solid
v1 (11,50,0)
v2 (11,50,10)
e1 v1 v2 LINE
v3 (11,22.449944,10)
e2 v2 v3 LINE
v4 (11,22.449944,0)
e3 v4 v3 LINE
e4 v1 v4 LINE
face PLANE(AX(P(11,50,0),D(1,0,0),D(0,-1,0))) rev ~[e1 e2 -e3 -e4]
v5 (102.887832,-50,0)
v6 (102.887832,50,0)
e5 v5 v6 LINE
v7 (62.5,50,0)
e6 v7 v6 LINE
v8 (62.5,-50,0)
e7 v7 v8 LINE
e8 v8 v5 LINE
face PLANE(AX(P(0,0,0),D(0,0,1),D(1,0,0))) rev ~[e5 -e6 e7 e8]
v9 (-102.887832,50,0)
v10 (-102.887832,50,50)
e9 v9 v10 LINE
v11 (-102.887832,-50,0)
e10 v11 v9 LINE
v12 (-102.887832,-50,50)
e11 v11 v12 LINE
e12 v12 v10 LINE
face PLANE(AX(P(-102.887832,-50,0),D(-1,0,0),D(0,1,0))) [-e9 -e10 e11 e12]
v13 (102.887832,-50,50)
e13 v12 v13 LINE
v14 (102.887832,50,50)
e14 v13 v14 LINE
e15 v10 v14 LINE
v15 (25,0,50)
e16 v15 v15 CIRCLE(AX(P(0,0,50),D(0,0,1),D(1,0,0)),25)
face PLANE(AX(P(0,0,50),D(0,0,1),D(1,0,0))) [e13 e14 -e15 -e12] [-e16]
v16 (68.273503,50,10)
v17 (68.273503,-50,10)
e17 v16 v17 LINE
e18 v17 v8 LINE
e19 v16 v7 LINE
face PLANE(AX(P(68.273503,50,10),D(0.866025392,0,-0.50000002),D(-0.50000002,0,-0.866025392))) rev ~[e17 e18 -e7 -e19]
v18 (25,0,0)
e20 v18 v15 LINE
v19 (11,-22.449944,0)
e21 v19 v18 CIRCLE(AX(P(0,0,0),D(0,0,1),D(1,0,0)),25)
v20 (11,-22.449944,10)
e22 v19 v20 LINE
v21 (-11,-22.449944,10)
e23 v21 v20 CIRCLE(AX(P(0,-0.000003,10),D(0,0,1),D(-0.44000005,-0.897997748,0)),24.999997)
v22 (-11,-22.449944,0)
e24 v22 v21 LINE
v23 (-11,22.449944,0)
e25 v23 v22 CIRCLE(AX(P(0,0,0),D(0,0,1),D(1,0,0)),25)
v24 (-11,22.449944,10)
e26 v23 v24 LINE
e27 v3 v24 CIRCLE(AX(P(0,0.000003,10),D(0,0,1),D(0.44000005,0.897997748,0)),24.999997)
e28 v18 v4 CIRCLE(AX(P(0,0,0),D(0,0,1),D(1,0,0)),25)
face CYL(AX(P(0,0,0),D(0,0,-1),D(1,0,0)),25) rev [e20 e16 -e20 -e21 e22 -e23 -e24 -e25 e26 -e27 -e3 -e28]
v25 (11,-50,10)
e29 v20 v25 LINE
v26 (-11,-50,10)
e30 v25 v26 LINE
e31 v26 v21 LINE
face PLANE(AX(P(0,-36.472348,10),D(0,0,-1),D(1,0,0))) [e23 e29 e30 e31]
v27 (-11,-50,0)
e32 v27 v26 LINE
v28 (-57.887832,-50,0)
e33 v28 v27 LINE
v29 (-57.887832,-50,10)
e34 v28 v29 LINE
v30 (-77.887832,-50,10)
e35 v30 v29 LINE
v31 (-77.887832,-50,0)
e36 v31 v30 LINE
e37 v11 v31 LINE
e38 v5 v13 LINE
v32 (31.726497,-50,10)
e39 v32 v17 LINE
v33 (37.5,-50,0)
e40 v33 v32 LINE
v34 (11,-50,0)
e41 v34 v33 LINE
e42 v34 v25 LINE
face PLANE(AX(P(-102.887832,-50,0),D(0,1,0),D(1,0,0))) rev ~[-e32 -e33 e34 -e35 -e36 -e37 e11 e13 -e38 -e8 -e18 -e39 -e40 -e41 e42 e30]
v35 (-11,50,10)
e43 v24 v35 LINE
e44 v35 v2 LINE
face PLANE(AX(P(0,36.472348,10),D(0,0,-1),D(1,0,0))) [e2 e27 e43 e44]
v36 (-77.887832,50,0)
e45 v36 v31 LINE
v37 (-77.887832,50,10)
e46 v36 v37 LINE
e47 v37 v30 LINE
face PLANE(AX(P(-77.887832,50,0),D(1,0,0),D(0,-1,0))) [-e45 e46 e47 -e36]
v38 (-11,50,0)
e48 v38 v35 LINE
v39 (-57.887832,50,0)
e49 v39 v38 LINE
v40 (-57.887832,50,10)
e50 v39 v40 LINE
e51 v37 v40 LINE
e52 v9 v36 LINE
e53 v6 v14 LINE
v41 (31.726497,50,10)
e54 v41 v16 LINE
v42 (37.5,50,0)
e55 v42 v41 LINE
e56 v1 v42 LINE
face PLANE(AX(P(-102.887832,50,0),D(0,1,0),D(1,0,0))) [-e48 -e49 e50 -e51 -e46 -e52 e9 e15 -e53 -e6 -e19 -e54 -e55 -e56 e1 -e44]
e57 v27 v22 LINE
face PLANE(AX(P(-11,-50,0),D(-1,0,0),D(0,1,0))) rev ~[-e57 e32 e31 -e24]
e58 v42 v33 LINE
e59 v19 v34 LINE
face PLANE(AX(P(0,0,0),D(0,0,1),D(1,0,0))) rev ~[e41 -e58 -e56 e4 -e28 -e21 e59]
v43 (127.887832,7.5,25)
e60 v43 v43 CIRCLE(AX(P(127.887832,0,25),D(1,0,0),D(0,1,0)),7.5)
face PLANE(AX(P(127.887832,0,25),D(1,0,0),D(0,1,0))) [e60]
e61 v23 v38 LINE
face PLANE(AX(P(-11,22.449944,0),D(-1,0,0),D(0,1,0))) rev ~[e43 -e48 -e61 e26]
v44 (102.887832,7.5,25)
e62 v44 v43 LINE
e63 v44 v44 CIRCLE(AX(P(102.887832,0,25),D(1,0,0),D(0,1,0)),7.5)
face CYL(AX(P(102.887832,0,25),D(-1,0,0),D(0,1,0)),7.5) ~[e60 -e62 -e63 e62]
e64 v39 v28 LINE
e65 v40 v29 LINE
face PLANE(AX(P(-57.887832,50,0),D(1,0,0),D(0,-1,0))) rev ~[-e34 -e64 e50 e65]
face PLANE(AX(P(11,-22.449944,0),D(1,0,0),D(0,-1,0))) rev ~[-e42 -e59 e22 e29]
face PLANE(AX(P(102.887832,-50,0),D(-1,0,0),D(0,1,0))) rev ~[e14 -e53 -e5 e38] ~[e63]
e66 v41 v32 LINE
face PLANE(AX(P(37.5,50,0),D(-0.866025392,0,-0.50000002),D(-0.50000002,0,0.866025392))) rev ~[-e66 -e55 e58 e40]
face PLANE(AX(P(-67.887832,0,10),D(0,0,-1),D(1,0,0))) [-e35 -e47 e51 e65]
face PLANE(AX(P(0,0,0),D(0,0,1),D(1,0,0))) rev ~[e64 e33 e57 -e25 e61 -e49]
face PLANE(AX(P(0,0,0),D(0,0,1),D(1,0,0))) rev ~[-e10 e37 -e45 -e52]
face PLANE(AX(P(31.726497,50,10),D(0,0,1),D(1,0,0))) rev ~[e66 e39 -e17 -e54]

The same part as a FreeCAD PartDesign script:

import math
import FreeCAD as App
import Part
import Sketcher
Q = App.Units.Quantity

doc = App.newDocument("Part")
body = doc.addObject("PartDesign::Body", "Body")

# Sketch on XY plane
sketch1 = body.newObject("Sketcher::SketchObject", "Sketch")
sketch1.AttachmentSupport = (doc.getObject("XY_Plane"), [""])
sketch1.MapMode = "FlatFace"
sketch1.addGeometry([
    Part.LineSegment(App.Vector(-103, 50, 0), App.Vector(-103, -50, 0)),  # 0
    Part.LineSegment(App.Vector(-103, -50, 0), App.Vector(103, -50, 0)),  # 1
    Part.LineSegment(App.Vector(103, -50, 0), App.Vector(103, 50, 0)),  # 2
    Part.LineSegment(App.Vector(103, 50, 0), App.Vector(-103, 50, 0)),  # 3
    Part.Circle(App.Vector(0, 0, 0), App.Vector(0, 0, 1), 25),  # 4
], False)
sketch1.addConstraint([
    Sketcher.Constraint("Coincident", 0, 2, 1, 1),
    Sketcher.Constraint("Coincident", 1, 2, 2, 1),
    Sketcher.Constraint("Coincident", 2, 2, 3, 1),
    Sketcher.Constraint("Coincident", 3, 2, 0, 1),
    Sketcher.Constraint("Vertical", 0),
    Sketcher.Constraint("Horizontal", 1),
    Sketcher.Constraint("Vertical", 2),
    Sketcher.Constraint("Horizontal", 3),
    Sketcher.Constraint("Coincident", 4, 3, -1, 1),
    Sketcher.Constraint("Symmetric", 0, 2, 2, 2, -1, 1),
    Sketcher.Constraint("Diameter", 4, 50.0),
    Sketcher.Constraint("DistanceY", 0, 2, 0, 1, 100.0),
    Sketcher.Constraint("DistanceX", 1, 1, 1, 2, 205.775664),
])
pad1 = body.newObject("PartDesign::Pad", "Pad")
pad1.Profile = sketch1
pad1.Length = 50

# Sketch on XY plane
sketch2 = body.newObject("Sketcher::SketchObject", "Sketch001")
sketch2.AttachmentSupport = (doc.getObject("XY_Plane"), [""])
sketch2.MapMode = "FlatFace"
sketch2.addGeometry([
    Part.LineSegment(App.Vector(-78, -50, 0), App.Vector(-78, 50, 0)),  # 0
    Part.LineSegment(App.Vector(-78, 50, 0), App.Vector(-58, 50, 0)),  # 1
    Part.LineSegment(App.Vector(-58, 50, 0), App.Vector(-58, -50, 0)),  # 2
    Part.LineSegment(App.Vector(-58, -50, 0), App.Vector(-78, -50, 0)),  # 3
    Part.LineSegment(App.Vector(11, -50, 0), App.Vector(-11, -50, 0)),  # 4
    Part.LineSegment(App.Vector(-11, -50, 0), App.Vector(-11, -22, 0)),  # 5
    Part.ArcOfCircle(Part.Circle(App.Vector(0, 0, 0), App.Vector(0, 0, 1), 25), math.radians(-116), math.radians(-64)),  # 6
    Part.LineSegment(App.Vector(11, -22, 0), App.Vector(11, -50, 0)),  # 7
    Part.LineSegment(App.Vector(-11, 22, 0), App.Vector(-11, 50, 0)),  # 8
    Part.LineSegment(App.Vector(-11, 50, 0), App.Vector(11, 50, 0)),  # 9
    Part.LineSegment(App.Vector(11, 50, 0), App.Vector(11, 22, 0)),  # 10
    Part.ArcOfCircle(Part.Circle(App.Vector(0, 0, 0), App.Vector(0, 0, 1), 25), math.radians(64), math.radians(116)),  # 11
], False)
sketch2.addConstraint([
    Sketcher.Constraint("Coincident", 0, 2, 1, 1),
    Sketcher.Constraint("Coincident", 1, 2, 2, 1),
    Sketcher.Constraint("Coincident", 2, 2, 3, 1),
    Sketcher.Constraint("Coincident", 3, 2, 0, 1),
    Sketcher.Constraint("Coincident", 4, 2, 5, 1),
    Sketcher.Constraint("Coincident", 5, 2, 6, 1),
    Sketcher.Constraint("Coincident", 6, 2, 7, 1),
    Sketcher.Constraint("Coincident", 7, 2, 4, 1),
    Sketcher.Constraint("Coincident", 8, 2, 9, 1),
    Sketcher.Constraint("Coincident", 9, 2, 10, 1),
    Sketcher.Constraint("Coincident", 10, 2, 11, 1),
    Sketcher.Constraint("Coincident", 11, 2, 8, 1),
    Sketcher.Constraint("Vertical", 0),
    Sketcher.Constraint("Horizontal", 1),
    Sketcher.Constraint("Vertical", 2),
    Sketcher.Constraint("Horizontal", 3),
    Sketcher.Constraint("Horizontal", 4),
    Sketcher.Constraint("Vertical", 5),
    Sketcher.Constraint("Vertical", 7),
    Sketcher.Constraint("Vertical", 8),
    Sketcher.Constraint("Horizontal", 9),
    Sketcher.Constraint("Vertical", 10),
    Sketcher.Constraint("Coincident", 6, 3, -1, 1),
    Sketcher.Constraint("Coincident", 11, 3, -1, 1),
    Sketcher.Constraint("Equal", 6, 11),
    Sketcher.Constraint("Symmetric", 7, 2, 8, 2, -1, 1),
    Sketcher.Constraint("Horizontal", 3, 2, 4, 2),
    Sketcher.Constraint("Horizontal", 5, 2, 6, 2),
    Sketcher.Constraint("Horizontal", 1, 2, 8, 2),
    Sketcher.Constraint("Horizontal", 10, 2, 11, 2),
    Sketcher.Constraint("DistanceX", 1, 1, 1, 2, 20.0),
    Sketcher.Constraint("DistanceX", 4, 2, 4, 1, 22.0),
    Sketcher.Constraint("DistanceY", 0, 1, 0, 2, 100.0),
    Sketcher.Constraint("Radius", 6, 24.999997),
    Sketcher.Constraint("DistanceX", 2, 2, 6, 2, 68.887832),
])
pocket1 = body.newObject("PartDesign::Pocket", "Pocket")
pocket1.Profile = sketch2
pocket1.Length = 10
pocket1.Reversed = True

# Sketch on XZ plane
sketch3 = body.newObject("Sketcher::SketchObject", "Sketch002")
sketch3.AttachmentSupport = (doc.getObject("XZ_Plane"), [""])
sketch3.MapMode = "FlatFace"
sketch3.AttachmentOffset = App.Placement(App.Vector(0, 0, -50), App.Rotation())
sketch3.addGeometry([
    Part.LineSegment(App.Vector(62, 0, 0), App.Vector(38, 0, 0)),
    Part.LineSegment(App.Vector(38, 0, 0), App.Vector(32, 10, 0)),
    Part.LineSegment(App.Vector(32, 10, 0), App.Vector(68, 10, 0)),
    Part.LineSegment(App.Vector(68, 10, 0), App.Vector(62, 0, 0)),
], False)
sketch3.addConstraint([
    Sketcher.Constraint("Coincident", 0, 2, 1, 1),
    Sketcher.Constraint("Coincident", 1, 2, 2, 1),
    Sketcher.Constraint("Coincident", 2, 2, 3, 1),
    Sketcher.Constraint("Coincident", 3, 2, 0, 1),
    Sketcher.Constraint("Horizontal", 0),
    Sketcher.Constraint("Horizontal", 2),
    Sketcher.Constraint("PointOnObject", 0, 2, -1),
    Sketcher.Constraint("Equal", 1, 3),
    Sketcher.Constraint("DistanceX", 0, 2, 0, 1, 25.0),
    Sketcher.Constraint("Angle", 1, Q("120.000001 deg")),
    Sketcher.Constraint("DistanceY", -1, 1, 1, 2, 10.0),
    Sketcher.Constraint("DistanceX", -1, 1, 0, 2, 37.5),
])
pocket2 = body.newObject("PartDesign::Pocket", "Pocket001")
pocket2.Profile = sketch3
pocket2.Type = "ThroughAll"
pocket2.Reversed = True

# Sketch on YZ plane
sketch4 = body.newObject("Sketcher::SketchObject", "Sketch003")
sketch4.AttachmentSupport = (doc.getObject("YZ_Plane"), [""])
sketch4.MapMode = "FlatFace"
sketch4.AttachmentOffset = App.Placement(App.Vector(0, 0, 102.887832), App.Rotation())
sketch4.addGeometry(Part.Circle(App.Vector(0, 25, 0), App.Vector(0, 0, 1), 8), False)
sketch4.addConstraint([
    Sketcher.Constraint("PointOnObject", 0, 3, -2),
    Sketcher.Constraint("Diameter", 0, 15.0),
    Sketcher.Constraint("DistanceY", -1, 1, 0, 3, 25.0),
])
pad2 = body.newObject("PartDesign::Pad", "Pad001")
pad2.Profile = sketch4
pad2.Length = 25

doc.recompute()
